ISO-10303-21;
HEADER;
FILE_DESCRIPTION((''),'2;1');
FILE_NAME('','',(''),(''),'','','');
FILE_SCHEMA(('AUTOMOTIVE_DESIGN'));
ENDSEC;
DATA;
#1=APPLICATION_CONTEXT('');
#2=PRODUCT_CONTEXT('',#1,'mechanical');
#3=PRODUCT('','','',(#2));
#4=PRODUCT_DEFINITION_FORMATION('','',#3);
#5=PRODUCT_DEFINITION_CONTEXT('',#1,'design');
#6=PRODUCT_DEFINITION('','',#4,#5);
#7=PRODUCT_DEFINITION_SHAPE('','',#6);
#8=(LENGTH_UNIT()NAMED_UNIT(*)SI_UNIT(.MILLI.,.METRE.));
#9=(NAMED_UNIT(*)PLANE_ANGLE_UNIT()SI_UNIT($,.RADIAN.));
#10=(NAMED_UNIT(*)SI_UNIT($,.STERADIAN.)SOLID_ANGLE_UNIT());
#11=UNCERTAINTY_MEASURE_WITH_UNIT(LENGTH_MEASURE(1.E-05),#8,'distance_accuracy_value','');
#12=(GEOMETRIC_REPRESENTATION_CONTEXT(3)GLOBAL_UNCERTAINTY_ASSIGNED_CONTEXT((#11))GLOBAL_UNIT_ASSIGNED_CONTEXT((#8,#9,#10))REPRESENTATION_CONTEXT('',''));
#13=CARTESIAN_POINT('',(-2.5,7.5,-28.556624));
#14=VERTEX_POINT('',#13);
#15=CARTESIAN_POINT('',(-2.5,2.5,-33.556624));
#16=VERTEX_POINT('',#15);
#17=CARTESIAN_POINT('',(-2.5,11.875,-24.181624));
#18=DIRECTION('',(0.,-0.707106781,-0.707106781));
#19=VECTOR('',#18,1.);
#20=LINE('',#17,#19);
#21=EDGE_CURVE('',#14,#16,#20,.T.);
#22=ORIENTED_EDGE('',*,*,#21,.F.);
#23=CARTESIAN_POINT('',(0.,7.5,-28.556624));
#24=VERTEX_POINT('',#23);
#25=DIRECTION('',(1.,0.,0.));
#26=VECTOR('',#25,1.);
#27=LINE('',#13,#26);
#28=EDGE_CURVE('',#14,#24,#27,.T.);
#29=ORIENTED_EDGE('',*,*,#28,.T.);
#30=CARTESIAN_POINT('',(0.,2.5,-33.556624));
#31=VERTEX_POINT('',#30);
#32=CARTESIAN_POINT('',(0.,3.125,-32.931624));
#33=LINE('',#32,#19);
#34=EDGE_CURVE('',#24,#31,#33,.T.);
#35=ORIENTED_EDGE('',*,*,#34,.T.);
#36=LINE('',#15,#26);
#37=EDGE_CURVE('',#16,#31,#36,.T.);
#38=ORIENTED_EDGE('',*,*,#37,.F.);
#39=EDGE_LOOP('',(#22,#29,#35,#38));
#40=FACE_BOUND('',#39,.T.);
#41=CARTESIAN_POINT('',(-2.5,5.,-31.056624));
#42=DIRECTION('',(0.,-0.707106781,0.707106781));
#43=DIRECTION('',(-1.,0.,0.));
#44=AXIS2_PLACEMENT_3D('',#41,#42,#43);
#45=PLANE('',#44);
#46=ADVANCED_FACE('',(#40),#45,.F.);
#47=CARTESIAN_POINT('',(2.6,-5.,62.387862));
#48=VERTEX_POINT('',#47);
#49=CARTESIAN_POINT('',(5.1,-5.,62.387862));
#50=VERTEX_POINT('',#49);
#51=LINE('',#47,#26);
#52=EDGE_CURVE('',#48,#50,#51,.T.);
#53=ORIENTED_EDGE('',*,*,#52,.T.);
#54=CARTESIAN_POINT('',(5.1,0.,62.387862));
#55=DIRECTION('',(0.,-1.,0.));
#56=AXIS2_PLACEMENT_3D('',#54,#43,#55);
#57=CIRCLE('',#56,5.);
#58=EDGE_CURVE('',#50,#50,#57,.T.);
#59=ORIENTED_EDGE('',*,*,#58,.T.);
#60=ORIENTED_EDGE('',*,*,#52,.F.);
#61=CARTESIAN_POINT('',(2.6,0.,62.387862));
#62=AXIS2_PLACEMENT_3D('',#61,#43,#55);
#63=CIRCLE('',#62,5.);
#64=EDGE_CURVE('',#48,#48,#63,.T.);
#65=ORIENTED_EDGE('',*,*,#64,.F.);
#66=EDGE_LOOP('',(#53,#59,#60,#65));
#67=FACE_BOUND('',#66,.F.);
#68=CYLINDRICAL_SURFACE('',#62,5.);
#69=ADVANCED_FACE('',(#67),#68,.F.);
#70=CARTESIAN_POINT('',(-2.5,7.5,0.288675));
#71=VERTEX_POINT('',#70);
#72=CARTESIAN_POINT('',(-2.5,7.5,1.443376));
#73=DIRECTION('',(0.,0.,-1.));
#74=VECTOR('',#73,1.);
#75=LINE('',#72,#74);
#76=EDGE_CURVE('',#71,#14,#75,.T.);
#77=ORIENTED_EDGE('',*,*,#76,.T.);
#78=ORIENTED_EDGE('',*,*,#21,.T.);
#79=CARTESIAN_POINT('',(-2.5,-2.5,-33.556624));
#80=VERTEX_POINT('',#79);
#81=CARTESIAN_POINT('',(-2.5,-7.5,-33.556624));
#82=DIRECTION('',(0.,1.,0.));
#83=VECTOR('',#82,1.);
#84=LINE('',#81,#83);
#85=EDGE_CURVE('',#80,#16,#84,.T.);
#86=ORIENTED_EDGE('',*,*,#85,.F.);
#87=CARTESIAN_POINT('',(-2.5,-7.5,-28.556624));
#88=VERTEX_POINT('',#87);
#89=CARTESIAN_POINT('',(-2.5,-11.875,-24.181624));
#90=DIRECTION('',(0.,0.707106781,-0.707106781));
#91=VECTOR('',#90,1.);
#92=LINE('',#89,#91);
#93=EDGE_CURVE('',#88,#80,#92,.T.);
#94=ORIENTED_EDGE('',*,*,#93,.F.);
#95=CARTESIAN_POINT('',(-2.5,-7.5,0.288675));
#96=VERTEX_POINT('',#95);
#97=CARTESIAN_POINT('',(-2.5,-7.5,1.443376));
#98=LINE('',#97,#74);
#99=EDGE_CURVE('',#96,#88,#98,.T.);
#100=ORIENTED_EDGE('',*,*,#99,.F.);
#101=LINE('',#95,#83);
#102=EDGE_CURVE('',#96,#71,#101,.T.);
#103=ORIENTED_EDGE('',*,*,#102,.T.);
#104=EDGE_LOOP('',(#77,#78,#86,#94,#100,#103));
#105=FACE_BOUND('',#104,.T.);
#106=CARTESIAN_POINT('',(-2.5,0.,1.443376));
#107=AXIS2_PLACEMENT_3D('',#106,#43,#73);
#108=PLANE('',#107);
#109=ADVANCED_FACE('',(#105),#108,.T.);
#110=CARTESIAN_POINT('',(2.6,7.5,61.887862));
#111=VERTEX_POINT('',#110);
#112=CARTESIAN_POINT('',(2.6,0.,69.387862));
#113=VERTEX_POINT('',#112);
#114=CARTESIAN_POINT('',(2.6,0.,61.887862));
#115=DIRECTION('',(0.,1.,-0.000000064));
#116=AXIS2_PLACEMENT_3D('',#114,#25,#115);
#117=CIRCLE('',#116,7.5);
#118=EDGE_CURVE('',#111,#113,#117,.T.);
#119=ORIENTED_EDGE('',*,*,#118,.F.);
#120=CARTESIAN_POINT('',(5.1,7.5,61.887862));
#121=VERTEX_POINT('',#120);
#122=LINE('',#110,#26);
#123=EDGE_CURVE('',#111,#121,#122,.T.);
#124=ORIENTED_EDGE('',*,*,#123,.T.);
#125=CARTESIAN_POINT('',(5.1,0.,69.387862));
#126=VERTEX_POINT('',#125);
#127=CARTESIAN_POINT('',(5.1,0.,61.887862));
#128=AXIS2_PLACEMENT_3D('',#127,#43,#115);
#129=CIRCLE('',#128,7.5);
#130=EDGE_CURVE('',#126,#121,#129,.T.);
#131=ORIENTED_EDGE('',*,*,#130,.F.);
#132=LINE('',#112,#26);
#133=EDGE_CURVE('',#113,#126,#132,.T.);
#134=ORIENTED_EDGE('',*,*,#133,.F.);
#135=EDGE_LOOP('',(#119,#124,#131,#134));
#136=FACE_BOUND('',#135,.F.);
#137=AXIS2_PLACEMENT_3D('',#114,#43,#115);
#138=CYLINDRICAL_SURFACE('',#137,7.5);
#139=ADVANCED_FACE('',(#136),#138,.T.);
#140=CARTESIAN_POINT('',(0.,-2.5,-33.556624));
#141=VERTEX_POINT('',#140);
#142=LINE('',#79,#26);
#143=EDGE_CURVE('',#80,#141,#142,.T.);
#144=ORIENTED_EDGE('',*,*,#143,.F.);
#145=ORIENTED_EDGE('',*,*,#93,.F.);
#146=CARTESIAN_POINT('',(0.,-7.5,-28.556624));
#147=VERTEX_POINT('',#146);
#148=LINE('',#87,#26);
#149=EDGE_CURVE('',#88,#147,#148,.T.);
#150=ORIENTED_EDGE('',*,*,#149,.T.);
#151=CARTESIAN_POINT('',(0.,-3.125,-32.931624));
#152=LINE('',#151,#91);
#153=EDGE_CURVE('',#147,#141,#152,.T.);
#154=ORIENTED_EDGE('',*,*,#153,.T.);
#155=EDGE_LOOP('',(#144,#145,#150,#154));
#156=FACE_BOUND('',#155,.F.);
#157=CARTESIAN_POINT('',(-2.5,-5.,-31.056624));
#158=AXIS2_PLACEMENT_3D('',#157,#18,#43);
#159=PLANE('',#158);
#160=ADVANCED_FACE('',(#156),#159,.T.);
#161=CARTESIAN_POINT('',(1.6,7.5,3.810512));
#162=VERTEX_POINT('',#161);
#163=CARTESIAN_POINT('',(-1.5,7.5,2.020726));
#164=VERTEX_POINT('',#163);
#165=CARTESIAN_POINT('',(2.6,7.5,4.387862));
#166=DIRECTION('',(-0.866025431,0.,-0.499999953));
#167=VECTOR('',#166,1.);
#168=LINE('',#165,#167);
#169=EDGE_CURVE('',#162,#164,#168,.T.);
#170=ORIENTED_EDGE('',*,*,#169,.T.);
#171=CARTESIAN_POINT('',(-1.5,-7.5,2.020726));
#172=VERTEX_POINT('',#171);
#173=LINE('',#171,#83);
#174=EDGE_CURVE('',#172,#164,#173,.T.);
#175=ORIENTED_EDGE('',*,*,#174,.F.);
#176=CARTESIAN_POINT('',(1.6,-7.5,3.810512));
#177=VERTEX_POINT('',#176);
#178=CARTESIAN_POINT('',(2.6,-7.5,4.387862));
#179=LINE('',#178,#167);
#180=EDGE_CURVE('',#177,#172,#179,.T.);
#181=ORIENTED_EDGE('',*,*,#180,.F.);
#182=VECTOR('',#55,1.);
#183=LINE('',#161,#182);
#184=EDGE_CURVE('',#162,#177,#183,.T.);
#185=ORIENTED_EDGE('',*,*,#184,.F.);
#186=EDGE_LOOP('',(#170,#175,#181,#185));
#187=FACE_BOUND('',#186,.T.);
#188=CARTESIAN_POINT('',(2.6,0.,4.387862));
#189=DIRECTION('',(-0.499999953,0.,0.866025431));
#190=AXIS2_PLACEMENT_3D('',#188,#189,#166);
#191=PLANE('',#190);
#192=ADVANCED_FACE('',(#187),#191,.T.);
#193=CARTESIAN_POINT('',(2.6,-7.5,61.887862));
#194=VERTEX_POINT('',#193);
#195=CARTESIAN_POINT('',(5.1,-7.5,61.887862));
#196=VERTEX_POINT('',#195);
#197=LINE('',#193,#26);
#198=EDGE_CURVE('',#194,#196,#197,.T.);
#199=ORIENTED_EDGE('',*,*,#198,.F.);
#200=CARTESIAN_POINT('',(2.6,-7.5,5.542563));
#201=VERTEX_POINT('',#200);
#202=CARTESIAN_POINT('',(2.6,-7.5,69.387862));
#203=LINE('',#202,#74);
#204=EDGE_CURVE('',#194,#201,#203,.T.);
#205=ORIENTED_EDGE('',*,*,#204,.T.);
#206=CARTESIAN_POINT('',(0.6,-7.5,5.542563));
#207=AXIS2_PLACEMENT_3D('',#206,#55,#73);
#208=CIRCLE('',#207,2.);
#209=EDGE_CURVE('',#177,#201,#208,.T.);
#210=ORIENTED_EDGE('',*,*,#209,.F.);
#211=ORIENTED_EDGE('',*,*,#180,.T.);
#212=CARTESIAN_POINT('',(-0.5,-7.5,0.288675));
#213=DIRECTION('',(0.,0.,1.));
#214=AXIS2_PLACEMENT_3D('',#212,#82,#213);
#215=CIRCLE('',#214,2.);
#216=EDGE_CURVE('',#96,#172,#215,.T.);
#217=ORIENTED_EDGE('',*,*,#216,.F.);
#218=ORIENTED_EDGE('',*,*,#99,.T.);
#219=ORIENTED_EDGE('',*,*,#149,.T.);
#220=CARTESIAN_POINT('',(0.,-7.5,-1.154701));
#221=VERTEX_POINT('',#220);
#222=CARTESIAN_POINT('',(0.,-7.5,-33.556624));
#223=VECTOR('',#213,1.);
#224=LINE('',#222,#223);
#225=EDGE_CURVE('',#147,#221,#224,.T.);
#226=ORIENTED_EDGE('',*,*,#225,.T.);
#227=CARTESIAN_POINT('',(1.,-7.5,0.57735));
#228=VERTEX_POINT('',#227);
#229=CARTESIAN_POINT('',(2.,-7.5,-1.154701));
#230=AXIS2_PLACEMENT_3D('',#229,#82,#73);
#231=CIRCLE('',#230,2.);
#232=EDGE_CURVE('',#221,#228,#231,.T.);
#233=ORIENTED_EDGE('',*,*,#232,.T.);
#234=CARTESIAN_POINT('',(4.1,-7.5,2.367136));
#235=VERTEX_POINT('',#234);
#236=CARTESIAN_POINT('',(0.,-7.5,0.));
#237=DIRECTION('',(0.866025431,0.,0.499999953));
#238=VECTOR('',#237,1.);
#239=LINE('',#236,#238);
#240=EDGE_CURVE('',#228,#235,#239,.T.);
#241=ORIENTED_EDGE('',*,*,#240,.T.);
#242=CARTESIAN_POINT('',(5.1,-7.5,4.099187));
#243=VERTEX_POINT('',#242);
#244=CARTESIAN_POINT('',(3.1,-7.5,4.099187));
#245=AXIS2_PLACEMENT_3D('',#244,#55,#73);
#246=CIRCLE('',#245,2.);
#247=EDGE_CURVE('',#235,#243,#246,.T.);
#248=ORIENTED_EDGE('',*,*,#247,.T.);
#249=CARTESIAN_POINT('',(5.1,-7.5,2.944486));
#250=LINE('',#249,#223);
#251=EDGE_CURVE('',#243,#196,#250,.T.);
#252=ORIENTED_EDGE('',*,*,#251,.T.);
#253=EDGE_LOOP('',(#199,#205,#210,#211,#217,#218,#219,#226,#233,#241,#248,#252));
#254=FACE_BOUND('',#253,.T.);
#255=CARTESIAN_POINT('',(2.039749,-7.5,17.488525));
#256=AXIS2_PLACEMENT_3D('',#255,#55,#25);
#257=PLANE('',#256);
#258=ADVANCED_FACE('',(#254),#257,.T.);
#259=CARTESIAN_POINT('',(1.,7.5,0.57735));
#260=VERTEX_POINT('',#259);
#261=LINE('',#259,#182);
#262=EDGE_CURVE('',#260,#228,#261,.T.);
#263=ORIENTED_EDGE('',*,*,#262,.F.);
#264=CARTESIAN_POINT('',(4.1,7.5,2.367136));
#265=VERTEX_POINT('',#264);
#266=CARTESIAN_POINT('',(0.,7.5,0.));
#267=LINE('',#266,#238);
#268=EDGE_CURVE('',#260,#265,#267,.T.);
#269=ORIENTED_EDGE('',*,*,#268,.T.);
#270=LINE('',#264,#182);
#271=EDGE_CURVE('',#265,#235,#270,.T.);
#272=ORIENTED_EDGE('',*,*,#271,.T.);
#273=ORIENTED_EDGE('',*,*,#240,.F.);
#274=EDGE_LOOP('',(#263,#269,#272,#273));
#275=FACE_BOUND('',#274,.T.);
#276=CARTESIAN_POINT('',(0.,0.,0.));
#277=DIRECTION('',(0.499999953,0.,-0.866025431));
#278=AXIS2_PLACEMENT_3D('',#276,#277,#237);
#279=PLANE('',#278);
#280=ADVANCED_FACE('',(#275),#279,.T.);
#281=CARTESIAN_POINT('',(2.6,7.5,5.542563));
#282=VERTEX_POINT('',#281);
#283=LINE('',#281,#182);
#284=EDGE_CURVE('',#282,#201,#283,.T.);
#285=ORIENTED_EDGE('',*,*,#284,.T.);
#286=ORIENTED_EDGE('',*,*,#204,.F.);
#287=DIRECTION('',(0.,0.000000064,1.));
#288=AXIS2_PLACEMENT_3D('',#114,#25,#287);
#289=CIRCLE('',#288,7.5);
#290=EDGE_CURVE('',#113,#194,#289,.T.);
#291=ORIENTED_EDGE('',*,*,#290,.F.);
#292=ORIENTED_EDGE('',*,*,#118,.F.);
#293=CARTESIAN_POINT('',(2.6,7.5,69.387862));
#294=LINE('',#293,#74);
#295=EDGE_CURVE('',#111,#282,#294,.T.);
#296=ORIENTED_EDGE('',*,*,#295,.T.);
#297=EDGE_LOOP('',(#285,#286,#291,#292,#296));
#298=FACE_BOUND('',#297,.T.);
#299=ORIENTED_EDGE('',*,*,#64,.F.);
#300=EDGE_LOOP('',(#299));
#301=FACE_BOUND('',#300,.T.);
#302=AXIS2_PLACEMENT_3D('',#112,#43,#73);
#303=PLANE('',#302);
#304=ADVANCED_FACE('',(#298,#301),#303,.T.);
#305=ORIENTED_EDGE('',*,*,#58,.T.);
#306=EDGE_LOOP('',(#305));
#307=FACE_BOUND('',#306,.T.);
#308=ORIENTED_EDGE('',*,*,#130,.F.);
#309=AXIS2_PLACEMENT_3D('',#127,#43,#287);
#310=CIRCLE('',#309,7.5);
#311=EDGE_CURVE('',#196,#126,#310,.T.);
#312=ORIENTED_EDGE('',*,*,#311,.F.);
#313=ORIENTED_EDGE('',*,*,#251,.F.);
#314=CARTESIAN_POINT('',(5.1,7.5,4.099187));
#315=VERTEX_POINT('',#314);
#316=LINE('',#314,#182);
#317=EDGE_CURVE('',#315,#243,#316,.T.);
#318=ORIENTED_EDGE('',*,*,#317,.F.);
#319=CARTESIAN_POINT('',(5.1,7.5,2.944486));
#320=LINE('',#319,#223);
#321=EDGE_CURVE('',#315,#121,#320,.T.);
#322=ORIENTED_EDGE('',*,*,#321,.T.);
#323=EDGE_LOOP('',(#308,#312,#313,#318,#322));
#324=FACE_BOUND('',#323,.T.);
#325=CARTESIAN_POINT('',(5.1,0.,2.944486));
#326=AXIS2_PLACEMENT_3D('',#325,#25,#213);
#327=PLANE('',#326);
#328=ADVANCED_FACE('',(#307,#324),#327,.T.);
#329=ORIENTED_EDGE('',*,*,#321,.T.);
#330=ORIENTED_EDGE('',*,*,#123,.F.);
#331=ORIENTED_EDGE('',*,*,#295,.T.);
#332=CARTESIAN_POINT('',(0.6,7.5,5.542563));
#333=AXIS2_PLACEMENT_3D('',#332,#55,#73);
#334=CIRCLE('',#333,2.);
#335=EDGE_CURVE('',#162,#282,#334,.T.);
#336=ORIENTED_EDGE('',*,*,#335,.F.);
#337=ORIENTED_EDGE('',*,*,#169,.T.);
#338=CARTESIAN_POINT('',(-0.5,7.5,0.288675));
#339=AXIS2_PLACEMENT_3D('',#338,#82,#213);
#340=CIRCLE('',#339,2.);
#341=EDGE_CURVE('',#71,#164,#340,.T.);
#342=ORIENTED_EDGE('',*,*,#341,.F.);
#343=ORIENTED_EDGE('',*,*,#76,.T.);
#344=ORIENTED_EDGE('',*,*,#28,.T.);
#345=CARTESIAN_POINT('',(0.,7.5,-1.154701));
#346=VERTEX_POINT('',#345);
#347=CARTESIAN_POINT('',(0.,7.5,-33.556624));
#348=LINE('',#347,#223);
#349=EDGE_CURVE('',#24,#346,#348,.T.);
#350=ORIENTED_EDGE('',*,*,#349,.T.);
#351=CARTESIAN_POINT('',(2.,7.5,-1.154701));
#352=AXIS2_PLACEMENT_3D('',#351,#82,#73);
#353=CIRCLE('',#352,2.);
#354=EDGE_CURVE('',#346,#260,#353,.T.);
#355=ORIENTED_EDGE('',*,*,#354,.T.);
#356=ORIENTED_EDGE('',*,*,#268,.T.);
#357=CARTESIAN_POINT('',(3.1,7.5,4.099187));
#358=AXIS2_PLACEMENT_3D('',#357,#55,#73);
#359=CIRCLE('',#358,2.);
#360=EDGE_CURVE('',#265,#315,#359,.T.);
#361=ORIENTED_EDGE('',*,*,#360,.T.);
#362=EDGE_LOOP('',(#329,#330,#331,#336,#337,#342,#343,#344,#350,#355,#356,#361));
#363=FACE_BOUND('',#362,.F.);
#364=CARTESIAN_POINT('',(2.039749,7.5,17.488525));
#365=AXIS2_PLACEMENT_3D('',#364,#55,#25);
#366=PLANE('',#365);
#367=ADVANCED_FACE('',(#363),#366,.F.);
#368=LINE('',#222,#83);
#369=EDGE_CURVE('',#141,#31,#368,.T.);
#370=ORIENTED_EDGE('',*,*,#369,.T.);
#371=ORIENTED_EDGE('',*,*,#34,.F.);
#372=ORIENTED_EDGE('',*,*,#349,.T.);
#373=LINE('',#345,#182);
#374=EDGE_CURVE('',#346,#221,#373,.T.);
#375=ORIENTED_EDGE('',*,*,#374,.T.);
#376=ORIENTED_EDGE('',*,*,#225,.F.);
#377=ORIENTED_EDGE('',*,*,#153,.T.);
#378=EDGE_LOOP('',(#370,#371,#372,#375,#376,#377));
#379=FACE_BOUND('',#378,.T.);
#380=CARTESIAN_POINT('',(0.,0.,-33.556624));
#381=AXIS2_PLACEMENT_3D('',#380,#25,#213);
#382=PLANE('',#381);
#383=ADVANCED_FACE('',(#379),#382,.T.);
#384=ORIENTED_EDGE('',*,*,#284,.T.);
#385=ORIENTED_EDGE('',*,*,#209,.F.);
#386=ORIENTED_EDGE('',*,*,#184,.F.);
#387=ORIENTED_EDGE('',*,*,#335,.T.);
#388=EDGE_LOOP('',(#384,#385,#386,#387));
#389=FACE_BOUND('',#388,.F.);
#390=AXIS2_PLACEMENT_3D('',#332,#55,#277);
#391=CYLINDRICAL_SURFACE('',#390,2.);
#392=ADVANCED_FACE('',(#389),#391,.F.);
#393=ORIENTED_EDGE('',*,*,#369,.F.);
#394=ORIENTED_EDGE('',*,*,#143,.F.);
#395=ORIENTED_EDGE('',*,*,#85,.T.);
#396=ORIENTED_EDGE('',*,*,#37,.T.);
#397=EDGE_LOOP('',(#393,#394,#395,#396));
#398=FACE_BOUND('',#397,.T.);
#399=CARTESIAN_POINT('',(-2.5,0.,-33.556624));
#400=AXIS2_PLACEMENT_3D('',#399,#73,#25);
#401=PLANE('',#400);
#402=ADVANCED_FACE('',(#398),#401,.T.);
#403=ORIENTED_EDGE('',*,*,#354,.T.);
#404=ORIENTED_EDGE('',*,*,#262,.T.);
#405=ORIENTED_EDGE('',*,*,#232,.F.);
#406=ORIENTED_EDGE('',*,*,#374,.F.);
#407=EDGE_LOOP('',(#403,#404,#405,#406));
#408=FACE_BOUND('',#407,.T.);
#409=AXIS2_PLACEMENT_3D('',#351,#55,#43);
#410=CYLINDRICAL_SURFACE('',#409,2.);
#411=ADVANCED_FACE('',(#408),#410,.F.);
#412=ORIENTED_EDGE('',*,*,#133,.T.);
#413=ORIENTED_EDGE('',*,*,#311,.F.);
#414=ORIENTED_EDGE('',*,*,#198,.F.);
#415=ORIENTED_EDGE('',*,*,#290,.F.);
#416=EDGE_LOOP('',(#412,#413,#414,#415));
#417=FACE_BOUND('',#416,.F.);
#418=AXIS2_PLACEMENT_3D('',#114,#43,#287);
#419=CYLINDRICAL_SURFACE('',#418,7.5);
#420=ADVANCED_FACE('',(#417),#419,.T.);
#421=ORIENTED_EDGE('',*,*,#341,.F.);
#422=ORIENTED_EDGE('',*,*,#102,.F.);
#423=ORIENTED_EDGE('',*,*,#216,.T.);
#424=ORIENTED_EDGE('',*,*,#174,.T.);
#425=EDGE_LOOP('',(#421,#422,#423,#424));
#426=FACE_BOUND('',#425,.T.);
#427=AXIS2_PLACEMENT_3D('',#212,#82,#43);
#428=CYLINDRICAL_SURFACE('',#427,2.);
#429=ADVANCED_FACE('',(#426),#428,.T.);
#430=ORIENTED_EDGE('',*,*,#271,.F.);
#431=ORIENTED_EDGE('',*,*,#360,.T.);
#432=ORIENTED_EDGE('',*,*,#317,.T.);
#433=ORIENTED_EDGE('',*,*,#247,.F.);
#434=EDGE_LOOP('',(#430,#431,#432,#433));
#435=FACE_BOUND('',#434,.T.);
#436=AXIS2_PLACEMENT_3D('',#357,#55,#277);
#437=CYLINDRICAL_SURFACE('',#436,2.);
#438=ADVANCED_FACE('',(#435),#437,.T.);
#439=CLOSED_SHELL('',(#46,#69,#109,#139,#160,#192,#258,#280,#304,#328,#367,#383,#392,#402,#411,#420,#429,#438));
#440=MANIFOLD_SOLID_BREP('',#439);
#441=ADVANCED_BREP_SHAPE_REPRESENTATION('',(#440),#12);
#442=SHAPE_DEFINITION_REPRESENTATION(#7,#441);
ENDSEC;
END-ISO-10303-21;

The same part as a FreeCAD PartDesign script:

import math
import FreeCAD as App
import Part
import Sketcher

V = App.Vector
Q = App.Units.Quantity


def edges_at(feature, points):
    """Names of the edges that pass closest to the given points."""
    edges = feature.Shape.Edges
    near = lambda p: min(range(len(edges)), key=lambda i: edges[i].distToShape(Part.Vertex(*p))[0])
    return sorted({f"Edge{near(p) + 1}" for p in points})

doc = App.newDocument("Part")
body = doc.addObject("PartDesign::Body", "Body")

sketch1 = body.newObject("Sketcher::SketchObject", "Sketch")
sketch1.AttachmentSupport = (doc.getObject("XZ_Plane"), [""])
sketch1.MapMode = "FlatFace"
sketch1.addGeometry([
    Part.LineSegment(V(0, -33.6, 0), V(0, 0, 0)),
    Part.LineSegment(V(0, 0, 0), V(5.1, 2.9, 0)),
    Part.LineSegment(V(5.1, 2.9, 0), V(5.1, 69.4, 0)),
    Part.LineSegment(V(5.1, 69.4, 0), V(2.6, 69.4, 0)),
    Part.LineSegment(V(2.6, 69.4, 0), V(2.6, 4.4, 0)),
    Part.LineSegment(V(2.6, 4.4, 0), V(-2.5, 1.4, 0)),
    Part.LineSegment(V(-2.5, 1.4, 0), V(-2.5, -33.6, 0)),
    Part.LineSegment(V(-2.5, -33.6, 0), V(0, -33.6, 0)),
], False)
sketch1.addConstraint([
    Sketcher.Constraint("Coincident", 0, 2, 1, 1),
    Sketcher.Constraint("Coincident", 1, 2, 2, 1),
    Sketcher.Constraint("Coincident", 2, 2, 3, 1),
    Sketcher.Constraint("Coincident", 3, 2, 4, 1),
    Sketcher.Constraint("Coincident", 4, 2, 5, 1),
    Sketcher.Constraint("Coincident", 5, 2, 6, 1),
    Sketcher.Constraint("Coincident", 6, 2, 7, 1),
    Sketcher.Constraint("Coincident", 7, 2, 0, 1),
    Sketcher.Constraint("Vertical", 0),
    Sketcher.Constraint("Vertical", 2),
    Sketcher.Constraint("Horizontal", 3),
    Sketcher.Constraint("Vertical", 4),
    Sketcher.Constraint("Vertical", 6),
    Sketcher.Constraint("Horizontal", 7),
    Sketcher.Constraint("Coincident", 0, 2, -1, 1),
    Sketcher.Constraint("Parallel", 1, 5),
    Sketcher.Constraint("Equal", 3, 7),
    Sketcher.Constraint("DistanceY", 4, 2, 4, 1, 65.0),
    Sketcher.Constraint("DistanceY", 6, 2, 6, 1, 35.0),
    Sketcher.Constraint("Angle", 1, Q("29.999997 deg")),
    Sketcher.Constraint("DistanceX", 3, 2, 3, 1, 2.5),
    Sketcher.Constraint("DistanceX", -1, 1, 1, 2, 5.1),
    Sketcher.Constraint("DistanceY", 0, 1, 0, 2, 33.556624),
])
pad1 = body.newObject("PartDesign::Pad", "Pad")
pad1.Profile = sketch1
pad1.Length = 15
pad1.Midplane = True

sketch2 = body.newObject("Sketcher::SketchObject", "Sketch001")
sketch2.AttachmentSupport = (doc.getObject("YZ_Plane"), [""])
sketch2.MapMode = "FlatFace"
sketch2.AttachmentOffset = App.Placement(V(0, 0, 2.6), App.Rotation())
sketch2.addGeometry([
    Part.LineSegment(V(8, 69, 0), V(8, 62, 0)),
    Part.ArcOfCircle(Part.Circle(V(0, 62, 0), V(0, 0, 1), 7), math.radians(0), math.radians(90)),
    Part.LineSegment(V(0, 69, 0), V(8, 69, 0)),
    Part.Circle(V(0, 62, 0), V(0, 0, 1), 5),
    Part.LineSegment(V(-8, 69, 0), V(0, 69, 0)),
    Part.ArcOfCircle(Part.Circle(V(0, 62, 0), V(0, 0, 1), 7), math.radians(90), math.radians(180)),
    Part.LineSegment(V(-8, 62, 0), V(-8, 69, 0)),
], False)
sketch2.addConstraint([
    Sketcher.Constraint("Tangent", 0, 2, 1, 1),
    Sketcher.Constraint("Tangent", 1, 2, 2, 1),
    Sketcher.Constraint("Coincident", 2, 2, 0, 1),
    Sketcher.Constraint("Tangent", 4, 2, 5, 1),
    Sketcher.Constraint("Tangent", 5, 2, 6, 1),
    Sketcher.Constraint("Coincident", 6, 2, 4, 1),
    Sketcher.Constraint("Vertical", 0),
    Sketcher.Constraint("Horizontal", 2),
    Sketcher.Constraint("Horizontal", 4),
    Sketcher.Constraint("Vertical", 6),
    Sketcher.Constraint("Coincident", 5, 3, 1, 3),
    Sketcher.Constraint("Equal", 1, 5),
    Sketcher.Constraint("PointOnObject", 1, 3, -2),
    Sketcher.Constraint("PointOnObject", 3, 3, -2),
    Sketcher.Constraint("Diameter", 3, 10.0),
    Sketcher.Constraint("Radius", 1, 7.5),
    Sketcher.Constraint("DistanceY", 3, 3, 1, 2, 7.0),
    Sketcher.Constraint("DistanceY", -1, 1, 3, 3, 62.387862),
])
pocket1 = body.newObject("PartDesign::Pocket", "Pocket")
pocket1.Profile = sketch2
pocket1.Length = 25
pocket1.Reversed = True
doc.recompute()

chamfer = body.newObject("PartDesign::Chamfer", "Chamfer")
chamfer.Base = (pocket1, edges_at(pocket1, [(-1.25, 7.5, -33.557), (-1.25, -7.5, -33.557)]))
chamfer.Size = 5
doc.recompute()

fillet = body.newObject("PartDesign::Fillet", "Fillet")
fillet.Base = (chamfer, edges_at(chamfer, [
    (-2.5, 0, 1.443),
    (2.6, 0, 4.388),
    (5.1, 0, 2.944),
    (0, 0, 0),
]))
fillet.Radius = 2

doc.recompute()
